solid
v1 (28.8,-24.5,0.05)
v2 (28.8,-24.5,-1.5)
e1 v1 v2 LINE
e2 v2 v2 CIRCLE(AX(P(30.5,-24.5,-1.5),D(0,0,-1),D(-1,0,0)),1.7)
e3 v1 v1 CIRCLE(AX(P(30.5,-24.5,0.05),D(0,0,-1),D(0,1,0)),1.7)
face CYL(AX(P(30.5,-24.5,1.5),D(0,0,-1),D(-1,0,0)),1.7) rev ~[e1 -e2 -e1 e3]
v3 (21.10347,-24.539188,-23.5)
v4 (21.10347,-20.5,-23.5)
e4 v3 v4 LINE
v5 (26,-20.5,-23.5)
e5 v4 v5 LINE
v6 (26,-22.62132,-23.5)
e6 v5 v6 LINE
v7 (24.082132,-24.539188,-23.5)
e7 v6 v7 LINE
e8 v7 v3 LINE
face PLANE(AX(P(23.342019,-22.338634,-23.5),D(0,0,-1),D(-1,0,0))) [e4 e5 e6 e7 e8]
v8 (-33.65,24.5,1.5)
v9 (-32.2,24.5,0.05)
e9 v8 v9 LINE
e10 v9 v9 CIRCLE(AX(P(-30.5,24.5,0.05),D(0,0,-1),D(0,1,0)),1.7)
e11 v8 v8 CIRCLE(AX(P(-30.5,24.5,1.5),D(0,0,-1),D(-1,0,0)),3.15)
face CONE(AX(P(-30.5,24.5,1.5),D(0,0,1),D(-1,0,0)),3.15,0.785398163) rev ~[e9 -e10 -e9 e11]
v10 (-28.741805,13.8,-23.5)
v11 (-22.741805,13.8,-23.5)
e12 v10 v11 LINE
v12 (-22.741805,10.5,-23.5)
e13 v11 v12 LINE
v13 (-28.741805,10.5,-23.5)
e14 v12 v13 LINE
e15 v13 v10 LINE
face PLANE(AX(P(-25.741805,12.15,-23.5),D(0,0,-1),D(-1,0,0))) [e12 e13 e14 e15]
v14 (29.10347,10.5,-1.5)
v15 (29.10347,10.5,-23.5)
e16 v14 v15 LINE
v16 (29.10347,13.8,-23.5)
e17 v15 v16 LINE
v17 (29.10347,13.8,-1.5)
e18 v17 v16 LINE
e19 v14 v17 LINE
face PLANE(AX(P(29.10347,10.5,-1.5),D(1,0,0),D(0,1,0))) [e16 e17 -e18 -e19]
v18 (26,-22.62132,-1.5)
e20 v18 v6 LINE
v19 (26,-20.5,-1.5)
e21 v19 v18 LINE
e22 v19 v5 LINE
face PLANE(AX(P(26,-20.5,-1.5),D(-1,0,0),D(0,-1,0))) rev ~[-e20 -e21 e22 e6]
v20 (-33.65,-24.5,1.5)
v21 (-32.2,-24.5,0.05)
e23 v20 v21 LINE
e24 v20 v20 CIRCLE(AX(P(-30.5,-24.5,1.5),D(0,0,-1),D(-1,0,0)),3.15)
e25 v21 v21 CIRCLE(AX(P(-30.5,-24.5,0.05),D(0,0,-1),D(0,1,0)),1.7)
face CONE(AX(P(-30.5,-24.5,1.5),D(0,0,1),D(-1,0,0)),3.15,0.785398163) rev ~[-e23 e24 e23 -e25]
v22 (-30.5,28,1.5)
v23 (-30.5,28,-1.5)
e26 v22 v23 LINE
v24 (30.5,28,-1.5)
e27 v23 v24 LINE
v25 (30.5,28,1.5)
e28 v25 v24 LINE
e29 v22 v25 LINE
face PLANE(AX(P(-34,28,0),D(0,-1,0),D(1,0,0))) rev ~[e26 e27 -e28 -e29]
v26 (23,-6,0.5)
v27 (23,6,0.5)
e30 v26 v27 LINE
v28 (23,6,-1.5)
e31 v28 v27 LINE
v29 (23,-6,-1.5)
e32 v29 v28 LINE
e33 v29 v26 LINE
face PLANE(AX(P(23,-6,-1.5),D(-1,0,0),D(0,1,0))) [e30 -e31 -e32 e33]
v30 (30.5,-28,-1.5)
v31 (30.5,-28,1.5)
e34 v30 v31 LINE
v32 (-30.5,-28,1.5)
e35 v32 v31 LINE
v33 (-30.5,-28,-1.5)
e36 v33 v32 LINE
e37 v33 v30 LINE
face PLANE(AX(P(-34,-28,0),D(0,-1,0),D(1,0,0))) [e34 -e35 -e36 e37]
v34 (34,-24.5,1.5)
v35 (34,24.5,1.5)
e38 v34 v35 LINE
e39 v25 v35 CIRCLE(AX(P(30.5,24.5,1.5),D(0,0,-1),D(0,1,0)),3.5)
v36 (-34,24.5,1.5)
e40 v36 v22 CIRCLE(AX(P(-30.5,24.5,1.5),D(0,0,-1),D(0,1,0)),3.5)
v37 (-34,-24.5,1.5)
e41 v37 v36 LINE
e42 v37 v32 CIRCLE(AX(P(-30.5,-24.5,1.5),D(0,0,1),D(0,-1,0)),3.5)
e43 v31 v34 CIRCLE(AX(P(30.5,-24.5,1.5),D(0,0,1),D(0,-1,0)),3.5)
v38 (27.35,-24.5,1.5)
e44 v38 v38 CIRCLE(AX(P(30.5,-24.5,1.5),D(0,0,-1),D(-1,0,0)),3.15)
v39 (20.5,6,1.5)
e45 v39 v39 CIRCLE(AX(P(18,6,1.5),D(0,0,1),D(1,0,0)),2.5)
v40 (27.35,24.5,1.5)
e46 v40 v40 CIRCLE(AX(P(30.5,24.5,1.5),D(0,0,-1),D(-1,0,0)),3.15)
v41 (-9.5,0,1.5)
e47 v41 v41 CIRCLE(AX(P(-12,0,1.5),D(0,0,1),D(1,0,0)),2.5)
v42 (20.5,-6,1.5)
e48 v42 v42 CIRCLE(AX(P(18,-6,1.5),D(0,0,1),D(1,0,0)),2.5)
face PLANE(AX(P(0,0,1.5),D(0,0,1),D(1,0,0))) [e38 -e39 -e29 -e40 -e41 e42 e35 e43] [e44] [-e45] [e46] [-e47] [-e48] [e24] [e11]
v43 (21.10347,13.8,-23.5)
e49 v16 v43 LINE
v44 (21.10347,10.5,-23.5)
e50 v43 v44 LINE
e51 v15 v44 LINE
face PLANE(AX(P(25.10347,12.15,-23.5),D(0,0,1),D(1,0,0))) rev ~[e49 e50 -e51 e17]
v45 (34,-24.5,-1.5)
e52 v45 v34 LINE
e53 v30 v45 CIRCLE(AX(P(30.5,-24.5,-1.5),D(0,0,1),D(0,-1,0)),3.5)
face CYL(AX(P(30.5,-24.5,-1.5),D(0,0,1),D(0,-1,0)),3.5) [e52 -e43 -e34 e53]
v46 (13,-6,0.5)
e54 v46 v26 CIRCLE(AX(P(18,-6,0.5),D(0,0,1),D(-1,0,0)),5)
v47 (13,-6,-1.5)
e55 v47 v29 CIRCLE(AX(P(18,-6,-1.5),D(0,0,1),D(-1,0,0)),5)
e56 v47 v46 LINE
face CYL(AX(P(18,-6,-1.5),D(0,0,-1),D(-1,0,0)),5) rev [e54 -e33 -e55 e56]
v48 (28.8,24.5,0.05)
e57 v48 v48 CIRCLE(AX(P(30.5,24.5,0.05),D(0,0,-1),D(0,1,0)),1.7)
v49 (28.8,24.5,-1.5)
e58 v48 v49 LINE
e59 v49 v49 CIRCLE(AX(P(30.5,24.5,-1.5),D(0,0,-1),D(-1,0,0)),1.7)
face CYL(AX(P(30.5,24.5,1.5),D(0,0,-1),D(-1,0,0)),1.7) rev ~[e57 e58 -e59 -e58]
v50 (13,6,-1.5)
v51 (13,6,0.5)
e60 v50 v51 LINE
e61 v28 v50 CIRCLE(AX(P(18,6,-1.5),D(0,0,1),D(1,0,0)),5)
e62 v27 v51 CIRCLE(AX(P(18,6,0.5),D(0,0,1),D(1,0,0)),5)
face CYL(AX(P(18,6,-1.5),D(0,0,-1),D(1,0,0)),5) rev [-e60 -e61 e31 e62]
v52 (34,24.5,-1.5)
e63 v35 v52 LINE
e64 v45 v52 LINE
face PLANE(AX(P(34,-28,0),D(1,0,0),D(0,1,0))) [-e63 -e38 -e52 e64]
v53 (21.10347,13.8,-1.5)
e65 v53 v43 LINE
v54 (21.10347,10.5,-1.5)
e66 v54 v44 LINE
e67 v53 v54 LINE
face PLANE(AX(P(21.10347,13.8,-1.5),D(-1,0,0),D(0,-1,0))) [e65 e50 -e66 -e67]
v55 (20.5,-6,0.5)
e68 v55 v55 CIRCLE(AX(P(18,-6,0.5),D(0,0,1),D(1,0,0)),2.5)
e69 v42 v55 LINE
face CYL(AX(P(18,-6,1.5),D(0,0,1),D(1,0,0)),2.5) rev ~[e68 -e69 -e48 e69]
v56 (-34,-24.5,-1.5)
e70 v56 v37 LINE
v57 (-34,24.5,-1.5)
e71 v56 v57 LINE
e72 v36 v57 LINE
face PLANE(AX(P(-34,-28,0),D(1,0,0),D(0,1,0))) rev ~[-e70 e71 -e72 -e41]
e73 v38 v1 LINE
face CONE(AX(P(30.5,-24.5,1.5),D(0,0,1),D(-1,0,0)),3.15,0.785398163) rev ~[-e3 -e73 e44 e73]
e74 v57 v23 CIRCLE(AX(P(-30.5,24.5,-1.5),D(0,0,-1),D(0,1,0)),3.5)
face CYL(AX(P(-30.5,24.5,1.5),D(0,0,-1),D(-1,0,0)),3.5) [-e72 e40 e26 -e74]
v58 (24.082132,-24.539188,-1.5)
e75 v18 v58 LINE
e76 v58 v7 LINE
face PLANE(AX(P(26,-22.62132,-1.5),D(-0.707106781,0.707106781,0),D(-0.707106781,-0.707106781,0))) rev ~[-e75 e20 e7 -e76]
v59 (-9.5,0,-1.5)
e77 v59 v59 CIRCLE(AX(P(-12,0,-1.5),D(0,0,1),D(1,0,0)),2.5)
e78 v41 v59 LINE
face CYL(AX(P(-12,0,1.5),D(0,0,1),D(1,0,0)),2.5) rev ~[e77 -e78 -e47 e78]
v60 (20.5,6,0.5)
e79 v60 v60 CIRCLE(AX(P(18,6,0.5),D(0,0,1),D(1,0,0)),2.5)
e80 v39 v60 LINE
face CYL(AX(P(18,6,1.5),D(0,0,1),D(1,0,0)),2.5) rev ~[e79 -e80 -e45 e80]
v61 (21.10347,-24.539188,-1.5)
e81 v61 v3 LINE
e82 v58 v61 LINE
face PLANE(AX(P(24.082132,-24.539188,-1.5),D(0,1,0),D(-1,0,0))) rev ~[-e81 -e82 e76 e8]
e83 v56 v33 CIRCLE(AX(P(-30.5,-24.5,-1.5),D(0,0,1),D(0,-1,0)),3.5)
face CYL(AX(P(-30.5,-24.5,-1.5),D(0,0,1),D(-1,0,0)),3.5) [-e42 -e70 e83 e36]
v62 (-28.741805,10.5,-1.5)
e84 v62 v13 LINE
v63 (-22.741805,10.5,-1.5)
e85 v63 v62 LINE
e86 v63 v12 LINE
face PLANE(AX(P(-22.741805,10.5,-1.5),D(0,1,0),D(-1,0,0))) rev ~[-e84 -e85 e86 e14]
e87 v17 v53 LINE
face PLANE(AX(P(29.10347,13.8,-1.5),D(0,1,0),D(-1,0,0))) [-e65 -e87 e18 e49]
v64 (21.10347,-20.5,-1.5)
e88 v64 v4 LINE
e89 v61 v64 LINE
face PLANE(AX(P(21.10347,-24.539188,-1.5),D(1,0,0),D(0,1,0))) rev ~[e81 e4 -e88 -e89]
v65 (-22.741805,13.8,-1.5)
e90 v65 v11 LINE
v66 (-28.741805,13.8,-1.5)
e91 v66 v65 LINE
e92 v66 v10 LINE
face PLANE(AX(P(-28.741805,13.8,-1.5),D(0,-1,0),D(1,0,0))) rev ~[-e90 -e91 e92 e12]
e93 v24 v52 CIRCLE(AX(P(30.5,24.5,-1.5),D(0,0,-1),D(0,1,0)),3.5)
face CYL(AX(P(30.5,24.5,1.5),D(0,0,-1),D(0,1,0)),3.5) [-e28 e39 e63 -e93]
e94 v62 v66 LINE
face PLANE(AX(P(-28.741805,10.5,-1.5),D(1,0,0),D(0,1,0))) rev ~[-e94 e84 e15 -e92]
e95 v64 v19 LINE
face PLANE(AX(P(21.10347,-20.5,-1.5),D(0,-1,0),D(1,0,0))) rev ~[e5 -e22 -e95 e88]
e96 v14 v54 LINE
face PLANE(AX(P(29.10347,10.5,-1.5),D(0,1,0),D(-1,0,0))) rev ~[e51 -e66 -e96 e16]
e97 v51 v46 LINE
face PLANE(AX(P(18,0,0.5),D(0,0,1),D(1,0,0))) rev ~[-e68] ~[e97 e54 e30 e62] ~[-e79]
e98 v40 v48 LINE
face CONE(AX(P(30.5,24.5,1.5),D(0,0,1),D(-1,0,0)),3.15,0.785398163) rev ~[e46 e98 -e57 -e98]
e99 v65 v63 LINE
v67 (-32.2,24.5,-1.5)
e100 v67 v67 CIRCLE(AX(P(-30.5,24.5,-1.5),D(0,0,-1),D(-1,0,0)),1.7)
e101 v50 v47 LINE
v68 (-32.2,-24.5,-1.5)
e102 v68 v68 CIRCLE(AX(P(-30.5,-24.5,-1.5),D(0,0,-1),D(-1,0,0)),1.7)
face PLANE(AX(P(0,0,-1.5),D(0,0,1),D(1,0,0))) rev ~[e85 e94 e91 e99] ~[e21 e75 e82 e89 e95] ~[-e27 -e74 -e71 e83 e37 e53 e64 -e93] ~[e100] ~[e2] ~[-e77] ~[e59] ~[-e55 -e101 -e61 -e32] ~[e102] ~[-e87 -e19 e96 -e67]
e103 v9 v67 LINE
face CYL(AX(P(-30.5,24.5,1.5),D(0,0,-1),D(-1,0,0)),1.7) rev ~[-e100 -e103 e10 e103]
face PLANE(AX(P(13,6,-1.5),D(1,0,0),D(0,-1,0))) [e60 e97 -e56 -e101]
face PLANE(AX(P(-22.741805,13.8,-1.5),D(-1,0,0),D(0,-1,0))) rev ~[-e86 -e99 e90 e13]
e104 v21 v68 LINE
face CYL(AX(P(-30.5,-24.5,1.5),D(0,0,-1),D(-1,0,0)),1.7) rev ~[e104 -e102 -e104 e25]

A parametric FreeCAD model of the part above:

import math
import FreeCAD as App
import Part
import Sketcher

V = App.Vector
Q = App.Units.Quantity


def edges_at(feature, points):
    """Names of the edges that pass closest to the given points."""
    edges = feature.Shape.Edges
    near = lambda p: min(range(len(edges)), key=lambda i: edges[i].distToShape(Part.Vertex(*p))[0])
    return sorted({f"Edge{near(p) + 1}" for p in points})

doc = App.newDocument("Part")
body = doc.addObject("PartDesign::Body", "Body")

# Sketch on XY plane
sketch1 = body.newObject("Sketcher::SketchObject", "Sketch")
sketch1.AttachmentSupport = (doc.getObject("XY_Plane"), [""])
sketch1.MapMode = "FlatFace"
sketch1.addGeometry([
    Part.LineSegment(V(-34, 28, 0), V(-34, -28, 0)),
    Part.LineSegment(V(-34, -28, 0), V(34, -28, 0)),
    Part.LineSegment(V(34, -28, 0), V(34, 28, 0)),
    Part.LineSegment(V(34, 28, 0), V(-34, 28, 0)),
], False)
sketch1.addConstraint([
    Sketcher.Constraint("Coincident", 0, 2, 1, 1),
    Sketcher.Constraint("Coincident", 1, 2, 2, 1),
    Sketcher.Constraint("Coincident", 2, 2, 3, 1),
    Sketcher.Constraint("Coincident", 3, 2, 0, 1),
    Sketcher.Constraint("Vertical", 0),
    Sketcher.Constraint("Horizontal", 1),
    Sketcher.Constraint("Vertical", 2),
    Sketcher.Constraint("Horizontal", 3),
    Sketcher.Constraint("Symmetric", 0, 2, 2, 2, -1, 1),
    Sketcher.Constraint("DistanceX", 1, 1, 1, 2, Q("68 mm")),
    Sketcher.Constraint("DistanceY", 0, 2, 0, 1, Q("56 mm")),
])
pad1 = body.newObject("PartDesign::Pad", "Pad")
pad1.Profile = sketch1
pad1.Length = 3
pad1.Midplane = True

# Sketch on XY plane
sketch2 = body.newObject("Sketcher::SketchObject", "Sketch001")
sketch2.AttachmentSupport = (doc.getObject("XY_Plane"), [""])
sketch2.MapMode = "FlatFace"
sketch2.AttachmentOffset = App.Placement(V(0, 0, 1.5), App.Rotation())
sketch2.addGeometry(Part.Circle(V(-12, 0, 0), V(0, 0, 1), 2.5), False)
sketch2.addConstraint([
    Sketcher.Constraint("PointOnObject", 0, 3, -1),
    Sketcher.Constraint("Diameter", 0, Q("5 mm")),
    Sketcher.Constraint("DistanceX", 0, 3, -1, 1, Q("12 mm")),
])
pocket1 = body.newObject("PartDesign::Pocket", "Pocket")
pocket1.Profile = sketch2
pocket1.Type = "UpToFirst"

# Sketch on XY plane
sketch3 = body.newObject("Sketcher::SketchObject", "Sketch002")
sketch3.AttachmentSupport = (doc.getObject("XY_Plane"), [""])
sketch3.MapMode = "FlatFace"
sketch3.AttachmentOffset = App.Placement(V(0, 0, 1.5), App.Rotation())
sketch3.addGeometry(Part.Circle(V(18, 6, 0), V(0, 0, 1), 2.5), False)
sketch3.addConstraint([
    Sketcher.Constraint("Diameter", 0, Q("5 mm")),
    Sketcher.Constraint("DistanceX", -1, 1, 0, 3, Q("18 mm")),
    Sketcher.Constraint("DistanceY", -1, 1, 0, 3, Q("6 mm")),
])
pocket2 = body.newObject("PartDesign::Pocket", "Pocket001")
pocket2.Profile = sketch3
pocket2.Type = "UpToFirst"

# Sketch on XY plane
sketch4 = body.newObject("Sketcher::SketchObject", "Sketch003")
sketch4.AttachmentSupport = (doc.getObject("XY_Plane"), [""])
sketch4.MapMode = "FlatFace"
sketch4.AttachmentOffset = App.Placement(V(0, 0, 1.5), App.Rotation())
sketch4.addGeometry(Part.Circle(V(18, -6, 0), V(0, 0, 1), 2.5), False)
sketch4.addConstraint([
    Sketcher.Constraint("Diameter", 0, Q("5 mm")),
    Sketcher.Constraint("DistanceX", -1, 1, 0, 3, Q("18 mm")),
    Sketcher.Constraint("DistanceY", 0, 3, -1, 1, Q("6 mm")),
])
pocket3 = body.newObject("PartDesign::Pocket", "Pocket002")
pocket3.Profile = sketch4
pocket3.Type = "UpToFirst"
doc.recompute()

fillet = body.newObject("PartDesign::Fillet", "Fillet")
fillet.Base = (pocket3, edges_at(pocket3, [
    (34, -28, 0),
    (-34, -28, 0),
    (-34, 28, 0),
    (34, 28, 0),
]))
fillet.Radius = 3.5

# Sketch on XY plane
sketch5 = body.newObject("Sketcher::SketchObject", "Sketch004")
sketch5.AttachmentSupport = (doc.getObject("XY_Plane"), [""])
sketch5.MapMode = "FlatFace"
sketch5.AttachmentOffset = App.Placement(V(0, 0, 1.5), App.Rotation())
sketch5.addGeometry([
    Part.Circle(V(-30.5, -24.5, 0), V(0, 0, 1), 1.7),
    Part.Circle(V(-30.5, 24.5, 0), V(0, 0, 1), 1.7),
    Part.Circle(V(30.5, 24.5, 0), V(0, 0, 1), 1.7),
    Part.Circle(V(30.5, -24.5, 0), V(0, 0, 1), 1.7),
], False)
sketch5.addConstraint([
    Sketcher.Constraint("Equal", 0, 1),
    Sketcher.Constraint("Equal", 1, 2),
    Sketcher.Constraint("Equal", 2, 3),
    Sketcher.Constraint("Symmetric", 0, 3, 2, 3, -1, 1),
    Sketcher.Constraint("Symmetric", 1, 3, 3, 3, -1, 1),
    Sketcher.Constraint("Symmetric", 1, 3, 2, 3, -2),
    Sketcher.Constraint("Diameter", 0, Q("3.4 mm")),
    Sketcher.Constraint("DistanceY", 0, 3, 1, 3, Q("49 mm")),
    Sketcher.Constraint("DistanceX", 1, 3, 2, 3, Q("61 mm")),
])
doc.recompute()
hole = body.newObject("PartDesign::Hole", "Hole")
hole.Profile = sketch5
hole.ThreadType = "None"
hole.Diameter = 3.4
hole.DepthType = "Dimension"
hole.Depth = 21.67
hole.DrillPoint = "Angled"
hole.DrillPointAngle = 118
hole.HoleCutType = "Countersink"
hole.HoleCutDiameter = 6.3
hole.HoleCutCountersinkAngle = 90

# Sketch on XY plane
sketch6 = body.newObject("Sketcher::SketchObject", "Sketch005")
sketch6.AttachmentSupport = (doc.getObject("XY_Plane"), [""])
sketch6.MapMode = "FlatFace"
sketch6.AttachmentOffset = App.Placement(V(0, 0, -1.5), App.Rotation())
sketch6.addGeometry([
    Part.LineSegment(V(21.1, -20.5, 0), V(26, -20.5, 0)),  # 0
    Part.LineSegment(V(26, -20.5, 0), V(26, -22.6, 0)),  # 1
    Part.LineSegment(V(26, -22.6, 0), V(24.1, -24.5, 0)),  # 2
    Part.LineSegment(V(24.1, -24.5, 0), V(21.1, -24.5, 0)),  # 3
    Part.LineSegment(V(21.1, -24.5, 0), V(21.1, -20.5, 0)),  # 4
    Part.LineSegment(V(-22.7, 10.5, 0), V(-28.7, 10.5, 0)),  # 5
    Part.LineSegment(V(-28.7, 10.5, 0), V(-28.7, 13.8, 0)),  # 6
    Part.LineSegment(V(-28.7, 13.8, 0), V(-22.7, 13.8, 0)),  # 7
    Part.LineSegment(V(-22.7, 13.8, 0), V(-22.7, 10.5, 0)),  # 8
    Part.LineSegment(V(29.1, 10.5, 0), V(21.1, 10.5, 0)),  # 9
    Part.LineSegment(V(21.1, 10.5, 0), V(21.1, 13.8, 0)),  # 10
    Part.LineSegment(V(21.1, 13.8, 0), V(29.1, 13.8, 0)),  # 11
    Part.LineSegment(V(29.1, 13.8, 0), V(29.1, 10.5, 0)),  # 12
], False)
sketch6.addConstraint([
    Sketcher.Constraint("Coincident", 0, 2, 1, 1),
    Sketcher.Constraint("Coincident", 1, 2, 2, 1),
    Sketcher.Constraint("Coincident", 2, 2, 3, 1),
    Sketcher.Constraint("Coincident", 3, 2, 4, 1),
    Sketcher.Constraint("Coincident", 4, 2, 0, 1),
    Sketcher.Constraint("Coincident", 5, 2, 6, 1),
    Sketcher.Constraint("Coincident", 6, 2, 7, 1),
    Sketcher.Constraint("Coincident", 7, 2, 8, 1),
    Sketcher.Constraint("Coincident", 8, 2, 5, 1),
    Sketcher.Constraint("Coincident", 9, 2, 10, 1),
    Sketcher.Constraint("Coincident", 10, 2, 11, 1),
    Sketcher.Constraint("Coincident", 11, 2, 12, 1),
    Sketcher.Constraint("Coincident", 12, 2, 9, 1),
    Sketcher.Constraint("Horizontal", 0),
    Sketcher.Constraint("Vertical", 1),
    Sketcher.Constraint("Horizontal", 3),
    Sketcher.Constraint("Vertical", 4),
    Sketcher.Constraint("Horizontal", 5),
    Sketcher.Constraint("Vertical", 6),
    Sketcher.Constraint("Horizontal", 7),
    Sketcher.Constraint("Vertical", 8),
    Sketcher.Constraint("Horizontal", 9),
    Sketcher.Constraint("Vertical", 10),
    Sketcher.Constraint("Horizontal", 11),
    Sketcher.Constraint("Vertical", 12),
    Sketcher.Constraint("Horizontal", 8, 2, 9, 2),
    Sketcher.Constraint("Horizontal", 7, 2, 10, 2),
    Sketcher.Constraint("Vertical", 4, 2, 9, 2),
    Sketcher.Constraint("DistanceX", 5, 2, 5, 1, Q("6 mm")),
    Sketcher.Constraint("DistanceX", 9, 2, 9, 1, Q("8 mm")),
    Sketcher.Constraint("Angle", 2, Q("-135 deg")),
    Sketcher.Constraint("DistanceY", 6, 1, 6, 2, Q("3.3 mm")),
    Sketcher.Constraint("DistanceX", -1, 1, 0, 2, Q("26 mm")),
    Sketcher.Constraint("DistanceY", 4, 2, 5, 2, Q("31 mm")),
    Sketcher.Constraint("DistanceY", 0, 2, -1, 1, Q("20.5 mm")),
    Sketcher.Constraint("DistanceX", 0, 1, 0, 2, Q("4.89653 mm")),
    Sketcher.Constraint("DistanceY", 1, 2, 1, 1, Q("2.12132 mm")),
    Sketcher.Constraint("DistanceY", 4, 1, 4, 2, Q("4.039188 mm")),
    Sketcher.Constraint("DistanceX", 5, 2, -1, 1, Q("28.741805 mm")),
])
pad2 = body.newObject("PartDesign::Pad", "Pad001")
pad2.Profile = sketch6
pad2.Length = 22
pad2.Reversed = True

# Sketch on XY plane
sketch7 = body.newObject("Sketcher::SketchObject", "Sketch006")
sketch7.AttachmentSupport = (doc.getObject("XY_Plane"), [""])
sketch7.MapMode = "FlatFace"
sketch7.AttachmentOffset = App.Placement(V(0, 0, -1.5), App.Rotation())
sketch7.addGeometry([
    Part.LineSegment(V(23, 6, 0), V(23, -6, 0)),
    Part.ArcOfCircle(Part.Circle(V(18, -6, 0), V(0, 0, 1), 5), math.radians(180), math.radians(360)),
    Part.LineSegment(V(13, -6, 0), V(13, 6, 0)),
    Part.ArcOfCircle(Part.Circle(V(18, 6, 0), V(0, 0, 1), 5), math.radians(0), math.radians(180)),
], False)
sketch7.addConstraint([
    Sketcher.Constraint("Tangent", 0, 2, 1, 2),
    Sketcher.Constraint("Tangent", 1, 1, 2, 1),
    Sketcher.Constraint("Tangent", 2, 2, 3, 2),
    Sketcher.Constraint("Tangent", 3, 1, 0, 1),
    Sketcher.Constraint("Vertical", 0),
    Sketcher.Constraint("Vertical", 2),
    Sketcher.Constraint("Radius", 1, Q("5 mm")),
    Sketcher.Constraint("DistanceY", 0, 2, 0, 1, Q("12 mm")),
    Sketcher.Constraint("DistanceX", -1, 1, 1, 3, Q("18 mm")),
    Sketcher.Constraint("DistanceY", 1, 3, -1, 1, Q("6 mm")),
])
pocket4 = body.newObject("PartDesign::Pocket", "Pocket003")
pocket4.Profile = sketch7
pocket4.Length = 2
pocket4.Reversed = True

doc.recompute()
